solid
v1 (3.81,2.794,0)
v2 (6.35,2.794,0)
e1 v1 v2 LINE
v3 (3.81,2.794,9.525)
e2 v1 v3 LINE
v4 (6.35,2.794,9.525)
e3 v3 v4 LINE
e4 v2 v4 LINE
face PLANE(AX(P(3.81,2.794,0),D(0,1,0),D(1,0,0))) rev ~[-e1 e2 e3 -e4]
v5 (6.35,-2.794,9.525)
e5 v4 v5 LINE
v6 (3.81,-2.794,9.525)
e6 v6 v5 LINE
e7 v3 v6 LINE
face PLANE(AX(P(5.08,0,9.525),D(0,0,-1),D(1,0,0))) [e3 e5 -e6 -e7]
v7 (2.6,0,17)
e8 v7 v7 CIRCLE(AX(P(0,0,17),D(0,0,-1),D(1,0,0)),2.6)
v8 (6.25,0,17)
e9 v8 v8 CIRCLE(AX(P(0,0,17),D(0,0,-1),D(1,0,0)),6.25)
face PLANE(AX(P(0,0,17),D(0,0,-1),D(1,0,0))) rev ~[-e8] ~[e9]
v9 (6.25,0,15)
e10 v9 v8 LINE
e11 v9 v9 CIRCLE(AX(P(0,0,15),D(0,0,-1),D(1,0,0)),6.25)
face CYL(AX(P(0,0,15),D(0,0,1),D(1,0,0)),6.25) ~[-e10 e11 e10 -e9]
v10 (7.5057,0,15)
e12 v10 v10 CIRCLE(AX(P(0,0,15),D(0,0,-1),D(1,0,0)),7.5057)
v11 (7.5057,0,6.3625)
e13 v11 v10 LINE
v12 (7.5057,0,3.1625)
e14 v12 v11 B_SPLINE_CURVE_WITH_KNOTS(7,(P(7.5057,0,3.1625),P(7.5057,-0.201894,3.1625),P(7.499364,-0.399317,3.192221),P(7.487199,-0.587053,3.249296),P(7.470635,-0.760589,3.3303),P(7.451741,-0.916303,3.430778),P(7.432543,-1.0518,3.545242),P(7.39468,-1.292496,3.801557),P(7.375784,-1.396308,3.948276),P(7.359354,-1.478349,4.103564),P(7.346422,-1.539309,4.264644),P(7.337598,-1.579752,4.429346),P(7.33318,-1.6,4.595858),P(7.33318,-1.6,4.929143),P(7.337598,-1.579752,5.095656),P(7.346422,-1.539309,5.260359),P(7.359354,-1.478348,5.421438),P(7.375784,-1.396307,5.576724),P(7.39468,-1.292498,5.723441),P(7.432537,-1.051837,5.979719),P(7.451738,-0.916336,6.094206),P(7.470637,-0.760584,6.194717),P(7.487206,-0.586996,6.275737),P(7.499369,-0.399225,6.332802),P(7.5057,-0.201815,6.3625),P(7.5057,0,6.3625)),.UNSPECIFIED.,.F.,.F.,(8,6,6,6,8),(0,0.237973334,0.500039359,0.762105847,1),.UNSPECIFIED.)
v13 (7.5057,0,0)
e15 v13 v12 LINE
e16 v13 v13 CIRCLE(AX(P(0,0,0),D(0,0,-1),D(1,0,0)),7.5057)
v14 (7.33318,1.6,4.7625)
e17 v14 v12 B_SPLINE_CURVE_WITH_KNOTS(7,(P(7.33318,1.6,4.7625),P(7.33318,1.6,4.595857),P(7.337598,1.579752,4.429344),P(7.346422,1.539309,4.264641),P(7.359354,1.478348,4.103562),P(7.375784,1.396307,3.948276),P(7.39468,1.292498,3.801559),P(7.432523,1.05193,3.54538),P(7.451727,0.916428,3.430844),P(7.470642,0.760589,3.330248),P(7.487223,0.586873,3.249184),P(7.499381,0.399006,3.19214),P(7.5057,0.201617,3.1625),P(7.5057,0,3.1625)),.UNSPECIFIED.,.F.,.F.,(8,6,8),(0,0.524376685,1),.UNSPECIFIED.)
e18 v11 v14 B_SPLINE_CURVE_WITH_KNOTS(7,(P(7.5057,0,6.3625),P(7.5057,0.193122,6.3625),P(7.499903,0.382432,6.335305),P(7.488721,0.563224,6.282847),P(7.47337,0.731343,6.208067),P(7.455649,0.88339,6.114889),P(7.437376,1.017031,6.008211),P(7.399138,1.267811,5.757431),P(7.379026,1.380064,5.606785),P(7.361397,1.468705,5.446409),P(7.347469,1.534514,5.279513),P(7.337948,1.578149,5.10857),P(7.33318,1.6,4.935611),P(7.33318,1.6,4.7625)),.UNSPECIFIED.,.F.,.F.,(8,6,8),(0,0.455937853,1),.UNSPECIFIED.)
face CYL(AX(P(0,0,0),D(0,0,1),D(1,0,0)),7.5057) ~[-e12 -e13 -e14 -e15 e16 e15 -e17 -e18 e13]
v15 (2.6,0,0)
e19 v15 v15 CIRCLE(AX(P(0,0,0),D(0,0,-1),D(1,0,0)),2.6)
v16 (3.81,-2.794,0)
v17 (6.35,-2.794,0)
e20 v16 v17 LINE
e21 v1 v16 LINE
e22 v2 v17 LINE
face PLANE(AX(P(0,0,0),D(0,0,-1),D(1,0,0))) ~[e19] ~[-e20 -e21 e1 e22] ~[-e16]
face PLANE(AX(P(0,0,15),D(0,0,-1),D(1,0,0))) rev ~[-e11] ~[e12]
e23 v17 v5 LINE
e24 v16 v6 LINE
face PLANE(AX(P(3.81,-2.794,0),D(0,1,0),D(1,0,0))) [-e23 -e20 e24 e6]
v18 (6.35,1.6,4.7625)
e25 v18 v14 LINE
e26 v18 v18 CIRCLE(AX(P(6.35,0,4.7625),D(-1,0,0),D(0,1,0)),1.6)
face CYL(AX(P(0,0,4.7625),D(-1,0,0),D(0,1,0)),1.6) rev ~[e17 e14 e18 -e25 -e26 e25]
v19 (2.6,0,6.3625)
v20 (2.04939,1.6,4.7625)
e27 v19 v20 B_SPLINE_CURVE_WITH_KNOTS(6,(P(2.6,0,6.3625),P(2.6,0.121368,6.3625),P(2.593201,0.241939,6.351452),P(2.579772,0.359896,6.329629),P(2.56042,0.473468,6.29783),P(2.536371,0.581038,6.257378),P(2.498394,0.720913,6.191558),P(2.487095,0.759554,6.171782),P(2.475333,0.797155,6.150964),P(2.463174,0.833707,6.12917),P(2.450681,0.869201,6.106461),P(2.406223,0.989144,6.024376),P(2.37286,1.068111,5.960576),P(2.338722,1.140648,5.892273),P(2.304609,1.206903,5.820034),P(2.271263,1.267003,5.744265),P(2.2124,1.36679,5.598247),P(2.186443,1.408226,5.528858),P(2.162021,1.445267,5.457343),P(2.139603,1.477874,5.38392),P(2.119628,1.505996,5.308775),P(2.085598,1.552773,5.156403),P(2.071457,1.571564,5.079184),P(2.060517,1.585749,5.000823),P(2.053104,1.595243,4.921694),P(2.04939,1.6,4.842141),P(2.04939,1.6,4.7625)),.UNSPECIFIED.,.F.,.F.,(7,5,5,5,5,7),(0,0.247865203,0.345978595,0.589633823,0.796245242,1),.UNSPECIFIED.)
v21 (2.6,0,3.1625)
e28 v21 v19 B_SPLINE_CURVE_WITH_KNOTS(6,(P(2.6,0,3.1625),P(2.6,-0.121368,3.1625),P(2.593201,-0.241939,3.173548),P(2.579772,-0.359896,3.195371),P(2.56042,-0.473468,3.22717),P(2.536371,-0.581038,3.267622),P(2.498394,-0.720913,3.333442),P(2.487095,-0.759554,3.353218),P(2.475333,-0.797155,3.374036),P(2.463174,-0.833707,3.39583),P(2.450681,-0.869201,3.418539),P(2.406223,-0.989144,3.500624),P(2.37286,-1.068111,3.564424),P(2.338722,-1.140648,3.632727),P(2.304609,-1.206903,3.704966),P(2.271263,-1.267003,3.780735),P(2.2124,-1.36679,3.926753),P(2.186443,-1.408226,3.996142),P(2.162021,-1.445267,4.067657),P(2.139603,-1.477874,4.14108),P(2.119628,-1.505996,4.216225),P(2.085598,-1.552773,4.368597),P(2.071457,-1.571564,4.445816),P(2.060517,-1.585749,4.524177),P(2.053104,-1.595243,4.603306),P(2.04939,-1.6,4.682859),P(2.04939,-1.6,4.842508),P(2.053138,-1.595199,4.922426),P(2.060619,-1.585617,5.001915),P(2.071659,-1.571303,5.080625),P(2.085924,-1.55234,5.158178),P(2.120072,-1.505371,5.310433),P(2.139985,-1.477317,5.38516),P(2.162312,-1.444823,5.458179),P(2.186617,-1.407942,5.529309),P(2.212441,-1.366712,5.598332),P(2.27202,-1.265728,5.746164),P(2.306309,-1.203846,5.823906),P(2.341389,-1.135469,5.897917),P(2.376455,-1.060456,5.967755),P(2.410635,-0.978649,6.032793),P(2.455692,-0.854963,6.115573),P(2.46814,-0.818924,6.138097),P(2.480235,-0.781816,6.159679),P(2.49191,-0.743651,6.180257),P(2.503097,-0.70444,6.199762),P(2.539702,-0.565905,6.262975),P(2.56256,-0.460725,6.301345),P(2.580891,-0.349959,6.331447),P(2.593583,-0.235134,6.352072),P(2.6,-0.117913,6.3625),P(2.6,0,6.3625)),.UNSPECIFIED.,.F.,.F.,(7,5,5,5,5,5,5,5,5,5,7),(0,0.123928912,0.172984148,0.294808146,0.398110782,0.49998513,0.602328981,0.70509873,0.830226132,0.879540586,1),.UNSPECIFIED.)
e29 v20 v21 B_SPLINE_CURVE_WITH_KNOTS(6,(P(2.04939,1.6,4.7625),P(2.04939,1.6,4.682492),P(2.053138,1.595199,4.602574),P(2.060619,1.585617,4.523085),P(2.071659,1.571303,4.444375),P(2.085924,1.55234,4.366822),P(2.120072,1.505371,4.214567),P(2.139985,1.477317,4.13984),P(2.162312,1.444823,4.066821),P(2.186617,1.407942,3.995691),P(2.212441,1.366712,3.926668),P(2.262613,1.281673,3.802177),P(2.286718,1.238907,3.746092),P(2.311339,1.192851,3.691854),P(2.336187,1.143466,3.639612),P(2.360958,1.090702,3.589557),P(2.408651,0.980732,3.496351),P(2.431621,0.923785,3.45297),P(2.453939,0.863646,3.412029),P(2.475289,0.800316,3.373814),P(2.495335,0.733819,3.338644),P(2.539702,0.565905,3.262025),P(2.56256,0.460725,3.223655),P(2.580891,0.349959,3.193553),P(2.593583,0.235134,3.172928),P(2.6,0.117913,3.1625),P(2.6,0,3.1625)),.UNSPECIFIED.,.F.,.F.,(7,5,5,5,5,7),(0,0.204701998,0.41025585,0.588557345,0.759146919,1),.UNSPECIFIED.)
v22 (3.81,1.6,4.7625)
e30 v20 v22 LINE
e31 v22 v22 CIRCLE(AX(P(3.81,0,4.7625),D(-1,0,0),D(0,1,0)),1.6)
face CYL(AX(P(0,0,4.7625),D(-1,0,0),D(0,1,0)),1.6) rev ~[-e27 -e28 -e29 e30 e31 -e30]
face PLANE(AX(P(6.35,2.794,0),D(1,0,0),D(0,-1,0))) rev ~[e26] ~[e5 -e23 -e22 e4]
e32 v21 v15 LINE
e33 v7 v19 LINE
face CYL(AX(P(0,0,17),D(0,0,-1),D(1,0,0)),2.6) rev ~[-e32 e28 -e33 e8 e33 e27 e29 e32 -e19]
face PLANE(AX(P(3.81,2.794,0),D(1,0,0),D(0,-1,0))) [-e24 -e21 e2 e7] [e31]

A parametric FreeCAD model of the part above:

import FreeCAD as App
import Part
import Sketcher
Q = App.Units.Quantity


def add_polygon(sketch, points):
    """Adds a closed chain of lines whose ends are joined by coincident constraints."""
    first, n = sketch.GeometryCount, len(points)
    for a, b in zip(points, points[1:] + points[:1]):
        sketch.addGeometry(Part.LineSegment(App.Vector(*a, 0), App.Vector(*b, 0)), False)
    for i in range(n):
        sketch.addConstraint(Sketcher.Constraint("Coincident", first + i, 2, first + (i + 1) % n, 1))

doc = App.newDocument("Part")
body = doc.addObject("PartDesign::Body", "Body")

# Sketch on XZ plane
sketch1 = body.newObject("Sketcher::SketchObject", "Sketch")
sketch1.AttachmentSupport = (doc.getObject("XZ_Plane"), [""])
sketch1.MapMode = "FlatFace"
add_polygon(sketch1, [(2.6, 17), (2.6, 0), (7.5, 0), (7.5, 15), (6.2, 15), (6.2, 17)])  # lines 0-5
sketch1.addConstraint(Sketcher.Constraint("Vertical", 0))
sketch1.addConstraint(Sketcher.Constraint("Horizontal", 1))
sketch1.addConstraint(Sketcher.Constraint("Vertical", 2))
sketch1.addConstraint(Sketcher.Constraint("Horizontal", 3))
sketch1.addConstraint(Sketcher.Constraint("Vertical", 4))
sketch1.addConstraint(Sketcher.Constraint("Horizontal", 5))
sketch1.addConstraint(Sketcher.Constraint("PointOnObject", 0, 2, -1))
sketch1.addConstraint(Sketcher.Constraint("DistanceY", 0, 2, 0, 1, Q("17 mm")))
sketch1.addConstraint(Sketcher.Constraint("DistanceY", 2, 1, 2, 2, Q("15 mm")))
sketch1.addConstraint(Sketcher.Constraint("DistanceX", 5, 2, 5, 1, Q("3.65 mm")))
sketch1.addConstraint(Sketcher.Constraint("DistanceX", -1, 1, 0, 2, Q("2.6 mm")))
sketch1.addConstraint(Sketcher.Constraint("DistanceX", 1, 1, 1, 2, Q("4.9057 mm")))
revolution = body.newObject("PartDesign::Revolution", "Revolution")
revolution.Profile = sketch1
revolution.ReferenceAxis = (sketch1, ["V_Axis"])
revolution.Angle = 360

# Sketch on XY plane
sketch2 = body.newObject("Sketcher::SketchObject", "Sketch001")
sketch2.AttachmentSupport = (doc.getObject("XY_Plane"), [""])
sketch2.MapMode = "FlatFace"
add_polygon(sketch2, [(3.8, -2.8), (3.8, 2.8), (6.3, 2.8), (6.3, -2.8)])  # lines 0-3
sketch2.addConstraint(Sketcher.Constraint("Vertical", 0))
sketch2.addConstraint(Sketcher.Constraint("Horizontal", 1))
sketch2.addConstraint(Sketcher.Constraint("Vertical", 2))
sketch2.addConstraint(Sketcher.Constraint("Horizontal", 3))
sketch2.addConstraint(Sketcher.Constraint("DistanceX", 1, 1, 1, 2, Q("2.54 mm")))
sketch2.addConstraint(Sketcher.Constraint("DistanceY", 0, 1, 0, 2, Q("5.588 mm")))
sketch2.addConstraint(Sketcher.Constraint("DistanceX", -1, 1, 0, 2, Q("3.81 mm")))
sketch2.addConstraint(Sketcher.Constraint("DistanceY", -1, 1, 0, 2, Q("2.794 mm")))
pocket1 = body.newObject("PartDesign::Pocket", "Pocket")
pocket1.Profile = sketch2
pocket1.Length = 9.525
pocket1.Reversed = True

# Sketch on YZ plane
sketch3 = body.newObject("Sketcher::SketchObject", "Sketch002")
sketch3.AttachmentSupport = (doc.getObject("YZ_Plane"), [""])
sketch3.MapMode = "FlatFace"
sketch3.addGeometry(Part.Circle(App.Vector(0, 4.8, 0), App.Vector(0, 0, 1), 1.6), False)
sketch3.addConstraint(Sketcher.Constraint("PointOnObject", 0, 3, -2))
sketch3.addConstraint(Sketcher.Constraint("Diameter", 0, Q("3.2 mm")))
sketch3.addConstraint(Sketcher.Constraint("DistanceY", -1, 1, 0, 3, Q("4.7625 mm")))
pocket2 = body.newObject("PartDesign::Pocket", "Pocket001")
pocket2.Profile = sketch3
pocket2.Type = "ThroughAll"
pocket2.Reversed = True

doc.recompute()
